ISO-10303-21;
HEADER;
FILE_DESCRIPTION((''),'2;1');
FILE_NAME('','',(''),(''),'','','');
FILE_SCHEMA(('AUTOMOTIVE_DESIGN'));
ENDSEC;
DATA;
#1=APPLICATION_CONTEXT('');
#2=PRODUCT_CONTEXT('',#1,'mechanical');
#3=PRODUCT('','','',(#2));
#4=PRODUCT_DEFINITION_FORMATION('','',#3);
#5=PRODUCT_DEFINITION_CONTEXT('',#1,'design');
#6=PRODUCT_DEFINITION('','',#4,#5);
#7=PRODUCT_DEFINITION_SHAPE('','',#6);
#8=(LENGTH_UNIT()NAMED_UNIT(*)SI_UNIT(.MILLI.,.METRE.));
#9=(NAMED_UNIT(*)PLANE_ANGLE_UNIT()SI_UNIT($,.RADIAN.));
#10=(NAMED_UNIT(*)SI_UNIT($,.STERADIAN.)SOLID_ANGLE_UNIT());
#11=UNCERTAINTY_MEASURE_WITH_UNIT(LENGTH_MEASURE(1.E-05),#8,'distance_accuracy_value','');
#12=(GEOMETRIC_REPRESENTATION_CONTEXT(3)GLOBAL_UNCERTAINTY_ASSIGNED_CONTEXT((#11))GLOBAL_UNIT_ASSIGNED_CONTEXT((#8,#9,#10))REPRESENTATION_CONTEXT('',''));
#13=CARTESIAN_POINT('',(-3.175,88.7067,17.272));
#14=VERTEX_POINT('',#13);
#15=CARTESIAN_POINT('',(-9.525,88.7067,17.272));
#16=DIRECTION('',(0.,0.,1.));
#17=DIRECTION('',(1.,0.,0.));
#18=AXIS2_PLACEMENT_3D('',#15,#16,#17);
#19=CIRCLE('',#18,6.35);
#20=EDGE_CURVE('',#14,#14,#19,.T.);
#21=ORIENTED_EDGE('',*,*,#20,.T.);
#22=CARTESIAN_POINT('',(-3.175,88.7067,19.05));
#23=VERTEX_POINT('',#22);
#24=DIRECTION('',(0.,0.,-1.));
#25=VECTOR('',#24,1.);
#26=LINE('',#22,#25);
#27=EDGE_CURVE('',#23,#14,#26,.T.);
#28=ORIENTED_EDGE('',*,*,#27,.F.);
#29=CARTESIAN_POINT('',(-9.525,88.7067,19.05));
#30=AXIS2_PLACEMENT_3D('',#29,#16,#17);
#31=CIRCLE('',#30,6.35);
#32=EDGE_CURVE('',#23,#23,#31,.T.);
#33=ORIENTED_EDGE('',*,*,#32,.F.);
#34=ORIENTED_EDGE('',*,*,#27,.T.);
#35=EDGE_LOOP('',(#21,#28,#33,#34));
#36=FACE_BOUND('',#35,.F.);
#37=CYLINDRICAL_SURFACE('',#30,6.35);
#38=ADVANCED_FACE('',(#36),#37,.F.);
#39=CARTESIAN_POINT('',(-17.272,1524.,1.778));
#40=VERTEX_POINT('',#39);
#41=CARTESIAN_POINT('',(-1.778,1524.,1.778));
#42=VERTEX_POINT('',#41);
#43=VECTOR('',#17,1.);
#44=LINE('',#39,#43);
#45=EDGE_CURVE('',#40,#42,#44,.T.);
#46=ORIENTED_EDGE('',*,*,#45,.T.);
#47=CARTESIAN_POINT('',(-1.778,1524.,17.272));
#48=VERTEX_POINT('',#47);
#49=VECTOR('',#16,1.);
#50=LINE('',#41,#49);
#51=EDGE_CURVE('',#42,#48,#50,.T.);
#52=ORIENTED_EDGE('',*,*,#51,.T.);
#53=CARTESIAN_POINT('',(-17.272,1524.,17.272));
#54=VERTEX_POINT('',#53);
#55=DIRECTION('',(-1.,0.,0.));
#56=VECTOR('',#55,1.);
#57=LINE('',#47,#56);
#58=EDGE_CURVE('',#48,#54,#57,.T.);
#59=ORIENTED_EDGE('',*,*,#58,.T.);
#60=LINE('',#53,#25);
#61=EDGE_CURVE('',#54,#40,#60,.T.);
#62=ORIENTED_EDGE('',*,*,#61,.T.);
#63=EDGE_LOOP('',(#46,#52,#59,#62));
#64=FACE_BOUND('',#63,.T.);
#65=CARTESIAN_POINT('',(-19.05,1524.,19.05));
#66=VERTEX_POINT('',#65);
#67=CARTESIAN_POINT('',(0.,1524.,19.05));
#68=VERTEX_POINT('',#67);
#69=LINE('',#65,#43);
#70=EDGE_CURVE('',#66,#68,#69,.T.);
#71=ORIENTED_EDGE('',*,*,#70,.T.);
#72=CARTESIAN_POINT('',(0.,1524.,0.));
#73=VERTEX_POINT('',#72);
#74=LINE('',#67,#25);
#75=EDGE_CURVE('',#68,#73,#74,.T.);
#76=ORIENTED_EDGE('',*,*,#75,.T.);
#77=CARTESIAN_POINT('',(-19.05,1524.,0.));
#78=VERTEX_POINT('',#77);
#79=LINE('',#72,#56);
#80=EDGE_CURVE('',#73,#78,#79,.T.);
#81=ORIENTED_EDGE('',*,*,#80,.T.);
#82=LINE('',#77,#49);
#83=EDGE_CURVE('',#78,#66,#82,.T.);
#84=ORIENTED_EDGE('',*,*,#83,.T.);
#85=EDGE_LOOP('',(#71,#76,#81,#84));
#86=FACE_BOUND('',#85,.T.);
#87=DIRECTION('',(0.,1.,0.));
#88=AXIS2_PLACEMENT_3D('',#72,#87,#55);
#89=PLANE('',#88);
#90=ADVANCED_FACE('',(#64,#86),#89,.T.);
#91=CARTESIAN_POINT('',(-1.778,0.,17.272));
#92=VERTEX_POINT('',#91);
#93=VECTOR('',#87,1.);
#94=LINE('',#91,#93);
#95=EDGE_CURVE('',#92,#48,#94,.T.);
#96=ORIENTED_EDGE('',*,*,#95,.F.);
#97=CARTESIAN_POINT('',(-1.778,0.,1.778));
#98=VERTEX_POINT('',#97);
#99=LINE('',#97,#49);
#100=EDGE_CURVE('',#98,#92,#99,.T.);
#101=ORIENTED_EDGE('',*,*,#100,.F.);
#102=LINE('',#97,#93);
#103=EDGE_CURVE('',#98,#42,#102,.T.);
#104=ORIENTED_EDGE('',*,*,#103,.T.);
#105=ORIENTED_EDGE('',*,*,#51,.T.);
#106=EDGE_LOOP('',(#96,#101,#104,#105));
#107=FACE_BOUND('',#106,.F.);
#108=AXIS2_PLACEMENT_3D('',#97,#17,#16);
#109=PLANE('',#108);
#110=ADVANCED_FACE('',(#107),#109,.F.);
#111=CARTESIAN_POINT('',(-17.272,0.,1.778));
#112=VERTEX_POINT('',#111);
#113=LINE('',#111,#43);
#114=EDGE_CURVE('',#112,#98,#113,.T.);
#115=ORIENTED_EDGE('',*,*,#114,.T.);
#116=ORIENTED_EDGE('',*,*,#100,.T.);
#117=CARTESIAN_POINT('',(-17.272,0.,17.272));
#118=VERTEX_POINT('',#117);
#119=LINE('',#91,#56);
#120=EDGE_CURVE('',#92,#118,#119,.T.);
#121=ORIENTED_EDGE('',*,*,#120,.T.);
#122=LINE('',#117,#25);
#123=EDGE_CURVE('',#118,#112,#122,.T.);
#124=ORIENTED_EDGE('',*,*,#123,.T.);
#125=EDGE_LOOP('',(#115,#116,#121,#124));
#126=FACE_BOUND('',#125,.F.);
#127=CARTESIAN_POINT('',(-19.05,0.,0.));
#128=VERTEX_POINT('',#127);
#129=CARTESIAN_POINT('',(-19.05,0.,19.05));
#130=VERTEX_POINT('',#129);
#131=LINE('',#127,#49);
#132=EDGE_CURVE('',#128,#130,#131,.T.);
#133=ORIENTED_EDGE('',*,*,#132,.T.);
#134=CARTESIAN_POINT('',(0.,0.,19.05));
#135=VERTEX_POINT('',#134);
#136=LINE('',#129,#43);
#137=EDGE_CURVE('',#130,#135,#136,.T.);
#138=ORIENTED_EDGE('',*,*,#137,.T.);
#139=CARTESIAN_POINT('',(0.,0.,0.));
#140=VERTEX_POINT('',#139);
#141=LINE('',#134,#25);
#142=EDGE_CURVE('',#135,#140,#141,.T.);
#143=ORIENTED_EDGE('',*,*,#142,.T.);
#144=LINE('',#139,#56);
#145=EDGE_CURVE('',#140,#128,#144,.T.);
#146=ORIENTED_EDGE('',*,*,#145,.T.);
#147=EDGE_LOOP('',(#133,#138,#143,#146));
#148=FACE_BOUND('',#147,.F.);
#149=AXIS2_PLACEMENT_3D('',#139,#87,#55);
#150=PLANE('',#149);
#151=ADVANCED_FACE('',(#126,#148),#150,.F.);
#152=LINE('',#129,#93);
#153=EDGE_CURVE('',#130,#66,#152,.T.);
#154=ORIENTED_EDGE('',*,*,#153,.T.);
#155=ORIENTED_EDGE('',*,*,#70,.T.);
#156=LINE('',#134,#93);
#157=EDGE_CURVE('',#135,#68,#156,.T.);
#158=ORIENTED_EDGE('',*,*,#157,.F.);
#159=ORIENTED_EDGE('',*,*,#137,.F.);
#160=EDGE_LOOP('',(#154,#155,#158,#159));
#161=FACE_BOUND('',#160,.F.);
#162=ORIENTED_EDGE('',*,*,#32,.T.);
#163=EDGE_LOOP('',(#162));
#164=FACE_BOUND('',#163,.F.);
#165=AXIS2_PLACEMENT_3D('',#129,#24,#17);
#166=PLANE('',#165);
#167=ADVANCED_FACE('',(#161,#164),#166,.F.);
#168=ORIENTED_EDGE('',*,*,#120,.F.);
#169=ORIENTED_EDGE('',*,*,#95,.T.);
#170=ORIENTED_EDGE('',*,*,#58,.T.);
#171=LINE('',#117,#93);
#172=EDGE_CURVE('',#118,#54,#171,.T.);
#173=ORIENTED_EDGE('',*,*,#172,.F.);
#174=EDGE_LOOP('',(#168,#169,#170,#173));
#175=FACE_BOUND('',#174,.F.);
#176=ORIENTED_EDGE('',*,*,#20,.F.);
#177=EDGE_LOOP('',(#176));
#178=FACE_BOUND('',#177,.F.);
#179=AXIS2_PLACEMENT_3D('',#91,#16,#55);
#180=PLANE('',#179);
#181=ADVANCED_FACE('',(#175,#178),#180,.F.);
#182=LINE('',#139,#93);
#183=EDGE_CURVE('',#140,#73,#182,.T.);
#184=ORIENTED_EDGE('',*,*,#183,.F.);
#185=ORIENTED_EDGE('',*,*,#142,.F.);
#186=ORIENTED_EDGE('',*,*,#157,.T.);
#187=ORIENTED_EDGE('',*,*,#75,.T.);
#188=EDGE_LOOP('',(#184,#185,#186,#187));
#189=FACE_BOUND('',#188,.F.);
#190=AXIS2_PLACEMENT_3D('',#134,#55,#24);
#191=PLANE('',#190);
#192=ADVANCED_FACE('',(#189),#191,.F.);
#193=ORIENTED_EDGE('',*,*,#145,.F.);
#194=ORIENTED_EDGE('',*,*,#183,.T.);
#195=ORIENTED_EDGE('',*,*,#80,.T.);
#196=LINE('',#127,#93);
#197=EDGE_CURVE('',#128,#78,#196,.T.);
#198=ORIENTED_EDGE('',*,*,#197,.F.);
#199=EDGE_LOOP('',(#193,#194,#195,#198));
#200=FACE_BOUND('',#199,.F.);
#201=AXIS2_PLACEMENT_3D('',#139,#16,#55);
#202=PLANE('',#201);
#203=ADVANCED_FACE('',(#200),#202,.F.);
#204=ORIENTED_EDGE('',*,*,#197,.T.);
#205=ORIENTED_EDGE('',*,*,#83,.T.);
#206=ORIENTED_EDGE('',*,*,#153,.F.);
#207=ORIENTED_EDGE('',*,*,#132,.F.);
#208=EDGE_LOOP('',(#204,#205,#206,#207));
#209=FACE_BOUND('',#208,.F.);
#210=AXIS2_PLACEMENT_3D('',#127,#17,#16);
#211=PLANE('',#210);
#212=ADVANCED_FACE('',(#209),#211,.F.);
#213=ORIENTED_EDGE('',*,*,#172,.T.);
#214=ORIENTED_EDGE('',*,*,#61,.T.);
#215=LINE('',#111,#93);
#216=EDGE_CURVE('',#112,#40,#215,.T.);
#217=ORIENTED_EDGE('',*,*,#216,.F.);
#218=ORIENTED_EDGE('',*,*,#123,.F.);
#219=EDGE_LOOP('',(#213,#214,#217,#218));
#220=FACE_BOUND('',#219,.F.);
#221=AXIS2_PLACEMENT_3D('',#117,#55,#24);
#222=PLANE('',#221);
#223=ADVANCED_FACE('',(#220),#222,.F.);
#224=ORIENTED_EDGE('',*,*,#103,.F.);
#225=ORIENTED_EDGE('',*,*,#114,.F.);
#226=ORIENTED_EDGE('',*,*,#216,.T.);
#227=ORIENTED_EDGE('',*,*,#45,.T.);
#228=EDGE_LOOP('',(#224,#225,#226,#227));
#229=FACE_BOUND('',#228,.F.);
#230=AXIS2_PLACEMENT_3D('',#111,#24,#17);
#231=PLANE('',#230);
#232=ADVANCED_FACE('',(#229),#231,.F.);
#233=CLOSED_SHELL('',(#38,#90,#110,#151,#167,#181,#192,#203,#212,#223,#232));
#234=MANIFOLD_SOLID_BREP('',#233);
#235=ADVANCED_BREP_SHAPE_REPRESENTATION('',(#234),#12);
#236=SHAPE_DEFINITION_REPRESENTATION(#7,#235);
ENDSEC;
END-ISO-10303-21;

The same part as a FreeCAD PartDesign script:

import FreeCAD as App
import Part
import Sketcher

V = App.Vector
Q = App.Units.Quantity

doc = App.newDocument("Part")
body = doc.addObject("PartDesign::Body", "Body")

# Sketch on XZ plane
sketch1 = doc.addObject("Sketcher::SketchObject", "Sketch")
body.addObject(sketch1)
sketch1.AttachmentSupport = (doc.XZ_Plane, [""])
sketch1.MapMode = "FlatFace"
sketch1.addGeometry(Part.LineSegment(V(0, 19.05, 0), V(0, 0, 0)), False)
sketch1.addGeometry(Part.LineSegment(V(0, 0, 0), V(-19.05, 0, 0)), False)
sketch1.addGeometry(Part.LineSegment(V(-19.05, 0, 0), V(-19.05, 19.05, 0)), False)
sketch1.addGeometry(Part.LineSegment(V(-19.05, 19.05, 0), V(0, 19.05, 0)), False)
sketch1.addGeometry(Part.LineSegment(V(-1.778, 1.778, 0), V(-1.778, 17.272, 0)), False)
sketch1.addGeometry(Part.LineSegment(V(-1.778, 17.272, 0), V(-17.272, 17.272, 0)), False)
sketch1.addGeometry(Part.LineSegment(V(-17.272, 17.272, 0), V(-17.272, 1.778, 0)), False)
sketch1.addGeometry(Part.LineSegment(V(-17.272, 1.778, 0), V(-1.778, 1.778, 0)), False)
sketch1.addConstraint(Sketcher.Constraint("Coincident", 0, 2, 1, 1))
sketch1.addConstraint(Sketcher.Constraint("Coincident", 1, 2, 2, 1))
sketch1.addConstraint(Sketcher.Constraint("Coincident", 2, 2, 3, 1))
sketch1.addConstraint(Sketcher.Constraint("Coincident", 3, 2, 0, 1))
sketch1.addConstraint(Sketcher.Constraint("Coincident", 4, 2, 5, 1))
sketch1.addConstraint(Sketcher.Constraint("Coincident", 5, 2, 6, 1))
sketch1.addConstraint(Sketcher.Constraint("Coincident", 6, 2, 7, 1))
sketch1.addConstraint(Sketcher.Constraint("Coincident", 7, 2, 4, 1))
sketch1.addConstraint(Sketcher.Constraint("Vertical", 0))
sketch1.addConstraint(Sketcher.Constraint("Horizontal", 1))
sketch1.addConstraint(Sketcher.Constraint("Vertical", 2))
sketch1.addConstraint(Sketcher.Constraint("Horizontal", 3))
sketch1.addConstraint(Sketcher.Constraint("Vertical", 4))
sketch1.addConstraint(Sketcher.Constraint("Horizontal", 5))
sketch1.addConstraint(Sketcher.Constraint("Vertical", 6))
sketch1.addConstraint(Sketcher.Constraint("Horizontal", 7))
sketch1.addConstraint(Sketcher.Constraint("Coincident", 0, 2, -1, 1))
sketch1.addConstraint(Sketcher.Constraint("Equal", 3, 0))
sketch1.addConstraint(Sketcher.Constraint("Equal", 7, 4))
sketch1.addConstraint(Sketcher.Constraint("DistanceX", 1, 2, 1, 1, Q("0.75 in")))
sketch1.addConstraint(Sketcher.Constraint("DistanceX", 4, 2, -1, 1, Q("0.07 in")))
sketch1.addConstraint(Sketcher.Constraint("DistanceY", -1, 1, 6, 2, Q("0.07 in")))
sketch1.addConstraint(Sketcher.Constraint("DistanceY", 4, 2, 3, 2, Q("0.07 in")))
pad1 = doc.addObject("PartDesign::Pad", "Pad")
body.addObject(pad1)
pad1.Profile = sketch1
pad1.Length = Q("60 in")
pad1.Reversed = True

# Sketch on XY plane
sketch2 = doc.addObject("Sketcher::SketchObject", "Sketch001")
body.addObject(sketch2)
sketch2.AttachmentSupport = (doc.XY_Plane, [""])
sketch2.MapMode = "FlatFace"
sketch2.AttachmentOffset = App.Placement(V(0, 0, 0.75 * 25.4), App.Rotation())
sketch2.addGeometry(Part.Circle(V(-9.525, 88.7067, 0), V(0, 0, 1), 6.35), False)
sketch2.addConstraint(Sketcher.Constraint("Diameter", 0, Q("0.5 in")))
sketch2.addConstraint(Sketcher.Constraint("DistanceX", 0, 3, -1, 1, Q("0.375 in")))
sketch2.addConstraint(Sketcher.Constraint("DistanceY", -1, 1, 0, 3, Q("3.4924 in")))
pocket1 = doc.addObject("PartDesign::Pocket", "Pocket")
body.addObject(pocket1)
pocket1.Profile = sketch2
pocket1.Length = Q("0.25 in")

doc.recompute()
